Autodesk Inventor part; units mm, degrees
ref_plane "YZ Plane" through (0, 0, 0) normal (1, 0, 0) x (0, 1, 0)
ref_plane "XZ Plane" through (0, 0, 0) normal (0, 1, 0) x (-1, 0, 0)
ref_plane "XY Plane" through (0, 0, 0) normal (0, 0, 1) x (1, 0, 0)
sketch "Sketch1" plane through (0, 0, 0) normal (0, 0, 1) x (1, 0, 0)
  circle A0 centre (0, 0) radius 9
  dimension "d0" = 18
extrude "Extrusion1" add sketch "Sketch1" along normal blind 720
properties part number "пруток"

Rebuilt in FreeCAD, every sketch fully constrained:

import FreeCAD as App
import Part
import Sketcher

V = App.Vector
Q = App.Units.Quantity

doc = App.newDocument("Part")
body = doc.addObject("PartDesign::Body", "Body")

# Sketch on XY plane
sketch1 = body.newObject("Sketcher::SketchObject", "Sketch")
sketch1.AttachmentSupport = (doc.getObject("XY_Plane"), [""])
sketch1.MapMode = "FlatFace"
sketch1.addGeometry(Part.Circle(V(0, 0, 0), V(0, 0, 1), 9), False)
sketch1.addConstraint(Sketcher.Constraint("Coincident", 0, 3, -1, 1))
sketch1.addConstraint(Sketcher.Constraint("Diameter", 0, Q("18 mm")))
pad1 = body.newObject("PartDesign::Pad", "Pad")
pad1.Profile = sketch1
pad1.Length = 720

doc.recompute()
